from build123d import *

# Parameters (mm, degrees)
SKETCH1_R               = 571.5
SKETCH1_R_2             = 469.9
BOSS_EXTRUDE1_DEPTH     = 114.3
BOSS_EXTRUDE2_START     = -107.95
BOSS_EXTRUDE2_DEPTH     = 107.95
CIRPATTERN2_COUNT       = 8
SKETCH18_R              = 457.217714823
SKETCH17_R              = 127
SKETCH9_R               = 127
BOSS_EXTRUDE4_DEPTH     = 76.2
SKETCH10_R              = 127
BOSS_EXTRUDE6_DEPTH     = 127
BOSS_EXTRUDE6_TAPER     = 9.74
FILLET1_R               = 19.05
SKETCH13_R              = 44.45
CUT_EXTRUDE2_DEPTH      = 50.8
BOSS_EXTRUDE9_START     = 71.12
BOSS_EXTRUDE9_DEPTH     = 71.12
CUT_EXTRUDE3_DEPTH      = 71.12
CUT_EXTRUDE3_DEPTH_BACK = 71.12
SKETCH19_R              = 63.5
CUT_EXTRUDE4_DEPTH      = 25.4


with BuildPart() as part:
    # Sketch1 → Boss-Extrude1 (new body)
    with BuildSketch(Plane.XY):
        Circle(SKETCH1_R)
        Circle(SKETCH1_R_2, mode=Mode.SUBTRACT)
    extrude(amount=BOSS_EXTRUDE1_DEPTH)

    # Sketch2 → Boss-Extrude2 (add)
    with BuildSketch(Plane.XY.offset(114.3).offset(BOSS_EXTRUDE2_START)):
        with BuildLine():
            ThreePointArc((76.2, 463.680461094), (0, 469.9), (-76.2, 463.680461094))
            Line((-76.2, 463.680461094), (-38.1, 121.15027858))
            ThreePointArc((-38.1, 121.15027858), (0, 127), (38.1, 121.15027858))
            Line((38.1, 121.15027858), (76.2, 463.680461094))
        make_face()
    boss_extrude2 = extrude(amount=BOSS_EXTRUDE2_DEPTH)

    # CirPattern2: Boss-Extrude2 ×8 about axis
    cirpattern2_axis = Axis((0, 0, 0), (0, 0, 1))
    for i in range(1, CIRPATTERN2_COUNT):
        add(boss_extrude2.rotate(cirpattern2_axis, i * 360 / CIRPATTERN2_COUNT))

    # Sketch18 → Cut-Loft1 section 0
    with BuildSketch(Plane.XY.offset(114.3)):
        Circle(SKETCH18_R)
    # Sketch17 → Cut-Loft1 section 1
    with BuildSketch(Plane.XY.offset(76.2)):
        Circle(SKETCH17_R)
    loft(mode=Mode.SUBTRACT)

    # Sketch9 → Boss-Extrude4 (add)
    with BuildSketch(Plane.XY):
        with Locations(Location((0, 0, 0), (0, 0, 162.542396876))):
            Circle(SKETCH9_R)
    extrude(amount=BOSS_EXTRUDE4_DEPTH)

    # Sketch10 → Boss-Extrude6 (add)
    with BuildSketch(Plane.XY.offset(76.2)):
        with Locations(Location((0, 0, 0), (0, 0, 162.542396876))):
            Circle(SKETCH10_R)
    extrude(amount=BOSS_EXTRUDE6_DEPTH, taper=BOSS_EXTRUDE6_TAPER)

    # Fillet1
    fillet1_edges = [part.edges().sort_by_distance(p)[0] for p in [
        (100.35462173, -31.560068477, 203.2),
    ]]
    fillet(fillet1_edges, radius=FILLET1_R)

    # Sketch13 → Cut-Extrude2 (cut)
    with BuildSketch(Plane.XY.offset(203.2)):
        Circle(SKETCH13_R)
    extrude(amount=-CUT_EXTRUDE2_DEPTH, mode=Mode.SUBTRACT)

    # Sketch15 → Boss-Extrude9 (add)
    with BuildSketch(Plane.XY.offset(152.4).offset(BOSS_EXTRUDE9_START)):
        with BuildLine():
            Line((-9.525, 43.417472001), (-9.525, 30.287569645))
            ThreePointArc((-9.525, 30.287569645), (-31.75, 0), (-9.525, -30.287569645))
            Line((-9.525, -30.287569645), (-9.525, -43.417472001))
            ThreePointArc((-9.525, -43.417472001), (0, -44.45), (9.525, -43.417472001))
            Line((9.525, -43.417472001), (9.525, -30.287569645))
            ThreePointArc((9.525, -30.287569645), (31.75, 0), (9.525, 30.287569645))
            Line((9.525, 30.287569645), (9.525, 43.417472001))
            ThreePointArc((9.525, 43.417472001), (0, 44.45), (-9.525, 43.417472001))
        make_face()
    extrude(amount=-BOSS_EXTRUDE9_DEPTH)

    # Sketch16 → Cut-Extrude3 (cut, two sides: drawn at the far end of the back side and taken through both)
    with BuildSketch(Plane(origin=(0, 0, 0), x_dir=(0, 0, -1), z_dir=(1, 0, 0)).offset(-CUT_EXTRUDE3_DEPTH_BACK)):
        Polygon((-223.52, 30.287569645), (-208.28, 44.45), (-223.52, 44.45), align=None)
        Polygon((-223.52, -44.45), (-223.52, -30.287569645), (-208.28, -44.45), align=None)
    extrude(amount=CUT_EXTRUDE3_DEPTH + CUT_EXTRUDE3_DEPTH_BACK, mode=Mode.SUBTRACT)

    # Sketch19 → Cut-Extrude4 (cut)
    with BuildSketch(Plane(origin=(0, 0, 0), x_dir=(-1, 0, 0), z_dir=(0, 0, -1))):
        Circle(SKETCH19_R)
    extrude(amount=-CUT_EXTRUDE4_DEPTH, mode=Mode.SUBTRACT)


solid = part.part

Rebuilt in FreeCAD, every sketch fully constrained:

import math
import FreeCAD as App
import Part
import Sketcher
from FreeCAD import Vector
Q = App.Units.Quantity


def edges_at(feature, points):
    """Names of the edges that pass closest to the given points."""
    edges = feature.Shape.Edges
    near = lambda p: min(range(len(edges)), key=lambda i: edges[i].distToShape(Part.Vertex(*p))[0])
    return sorted({f"Edge{near(p) + 1}" for p in points})


def add_polygon(sketch, points):
    """Adds a closed chain of lines whose ends are joined by coincident constraints."""
    first, n = sketch.GeometryCount, len(points)
    for a, b in zip(points, points[1:] + points[:1]):
        sketch.addGeometry(Part.LineSegment(App.Vector(*a, 0), App.Vector(*b, 0)), False)
    for i in range(n):
        sketch.addConstraint(Sketcher.Constraint("Coincident", first + i, 2, first + (i + 1) % n, 1))

doc = App.newDocument("Part")
params = doc.addObject("Spreadsheet::Sheet", "Params")
for row, (alias, value) in enumerate([
    ("sketch1_diameter", "45 in"),
    ("sketch1_diameter2", "37 in"),
    ("pad1_length", "4.5 in"),
    ("sketch2_radius", "5 in"),
    ("sketch2_radius2", "18.5 in"),
    ("pad2_length", "4.25 in"),
    ("sketch4_diameter", "10 in"),
    ("sketch5_diameter", "10 in"),
    ("pad3_length", "3 in"),
    ("sketch6_diameter", "10 in"),
    ("pad4_length", "5 in"),
    ("pad4_taper", "-9.74 deg"),
    ("fillet_radius", "0.75 in"),
    ("sketch7_diameter", "3.5 in"),
    ("pocket1_length", "2 in"),
    ("sketch8_radius", "1.25 in"),
    ("sketch8_radius2", "1.75 in"),
    ("pad5_length", "2.8 in"),
    ("sketch9_height", "0.6 in"),
    ("sketch10_diameter", "5 in"),
    ("pocket3_length", "1 in"),
], start=1):
    params.set(f"A{row}", alias)
    params.set(f"B{row}", "=" + value)
    params.setAlias(f"B{row}", alias)

body = doc.addObject("PartDesign::Body", "Body")

# Sketch on XY plane
sketch1 = body.newObject("Sketcher::SketchObject", "Sketch")
sketch1.AttachmentSupport = (doc.getObject("XY_Plane"), [""])
sketch1.MapMode = "FlatFace"
sketch1.addGeometry([
    Part.Circle(Vector(0, 0, 0), Vector(0, 0, 1), 572),
    Part.Circle(Vector(0, 0, 0), Vector(0, 0, 1), 470),
], False)
sketch1.addConstraint([
    Sketcher.Constraint("Coincident", 0, 3, -1, 1),
    Sketcher.Constraint("Coincident", 1, 3, -1, 1),
    Sketcher.Constraint("Diameter", 0, Q("45 in")),
    Sketcher.Constraint("Diameter", 1, Q("37 in")),
])
sketch1.setExpression("Constraints[2]", "Params.sketch1_diameter")
sketch1.setExpression("Constraints[3]", "Params.sketch1_diameter2")
pad1 = body.newObject("PartDesign::Pad", "Pad")
pad1.Profile = sketch1
pad1.setExpression("Length", "Params.pad1_length")

# Sketch on XY plane
sketch2 = body.newObject("Sketcher::SketchObject", "Sketch001")
sketch2.AttachmentSupport = (doc.getObject("XY_Plane"), [""])
sketch2.MapMode = "FlatFace"
sketch2.AttachmentOffset = App.Placement(Vector(0, 0, 0.25 * 25.4), App.Rotation())
sketch2.addGeometry([
    Part.ArcOfCircle(Part.Circle(Vector(0, 0, 0), Vector(0, 0, 1), 470), math.radians(80.67), math.radians(99.33)),
    Part.LineSegment(Vector(-76, 464, 0), Vector(-38, 121, 0)),
    Part.ArcOfCircle(Part.Circle(Vector(0, 0, 0), Vector(0, 0, 1), 127), math.radians(73), math.radians(107)),
    Part.LineSegment(Vector(38, 121, 0), Vector(76, 464, 0)),
], False)
sketch2.addConstraint([
    Sketcher.Constraint("Coincident", 0, 2, 1, 1),
    Sketcher.Constraint("Coincident", 1, 2, 2, 2),
    Sketcher.Constraint("Coincident", 2, 1, 3, 1),
    Sketcher.Constraint("Coincident", 3, 2, 0, 1),
    Sketcher.Constraint("Coincident", 0, 3, -1, 1),
    Sketcher.Constraint("Coincident", 2, 3, -1, 1),
    Sketcher.Constraint("Horizontal", 1, 2, 2, 1),
    Sketcher.Constraint("Horizontal", 0, 2, 3, 2),
    Sketcher.Constraint("Radius", 2, Q("5 in")),
    Sketcher.Constraint("Radius", 0, Q("18.5 in")),
    Sketcher.Constraint("DistanceX", -1, 1, 3, 2, Q("3 in")),
    Sketcher.Constraint("DistanceX", 1, 2, 2, 1, Q("3 in")),
])
sketch2.setExpression("Constraints[8]", "Params.sketch2_radius")
sketch2.setExpression("Constraints[9]", "Params.sketch2_radius2")
pad2 = body.newObject("PartDesign::Pad", "Pad001")
pad2.Profile = sketch2
pad2.setExpression("Length", "Params.pad2_length")
doc.recompute()

polarpattern = body.newObject("PartDesign::PolarPattern", "PolarPattern")
polarpattern.Originals = [pad2]
polarpattern.Axis = (doc.getObject("Z_Axis"), [""])
polarpattern.Angle = 360
polarpattern.Occurrences = 8
body.Tip = polarpattern

# Sketch on XY plane
sketch3 = body.newObject("Sketcher::SketchObject", "Sketch002")
sketch3.AttachmentSupport = (doc.getObject("XY_Plane"), [""])
sketch3.MapMode = "FlatFace"
sketch3.AttachmentOffset = App.Placement(Vector(0, 0, 4.5 * 25.4), App.Rotation())
sketch3.addGeometry(Part.Circle(Vector(0, 0, 0), Vector(0, 0, 1), 457), False)
sketch3.addConstraint([
    Sketcher.Constraint("Coincident", 0, 3, -1, 1),
    Sketcher.Constraint("Diameter", 0, 914.43543),
])

# Sketch on XY plane
sketch4 = body.newObject("Sketcher::SketchObject", "Sketch003")
sketch4.AttachmentSupport = (doc.getObject("XY_Plane"), [""])
sketch4.MapMode = "FlatFace"
sketch4.AttachmentOffset = App.Placement(Vector(0, 0, 3 * 25.4), App.Rotation())
sketch4.addGeometry(Part.Circle(Vector(0, 0, 0), Vector(0, 0, 1), 127), False)
sketch4.addConstraint([
    Sketcher.Constraint("Coincident", 0, 3, -1, 1),
    Sketcher.Constraint("Diameter", 0, Q("10 in")),
])
sketch4.setExpression("Constraints[1]", "Params.sketch4_diameter")

subtractiveloft = body.newObject("PartDesign::SubtractiveLoft", "SubtractiveLoft")
subtractiveloft.Profile = sketch3
subtractiveloft.Sections = [sketch4]

# Sketch on XY plane
sketch5 = body.newObject("Sketcher::SketchObject", "Sketch004")
sketch5.AttachmentSupport = (doc.getObject("XY_Plane"), [""])
sketch5.MapMode = "FlatFace"
sketch5.addGeometry(Part.Circle(Vector(0, 0, 0), Vector(0, 0, 1), 127), False)
sketch5.addConstraint([
    Sketcher.Constraint("Coincident", 0, 3, -1, 1),
    Sketcher.Constraint("Diameter", 0, Q("10 in")),
])
sketch5.setExpression("Constraints[1]", "Params.sketch5_diameter")
pad3 = body.newObject("PartDesign::Pad", "Pad002")
pad3.Profile = sketch5
pad3.setExpression("Length", "Params.pad3_length")

# Sketch on XY plane
sketch6 = body.newObject("Sketcher::SketchObject", "Sketch005")
sketch6.AttachmentSupport = (doc.getObject("XY_Plane"), [""])
sketch6.MapMode = "FlatFace"
sketch6.AttachmentOffset = App.Placement(Vector(0, 0, 3 * 25.4), App.Rotation())
sketch6.addGeometry(Part.Circle(Vector(0, 0, 0), Vector(0, 0, 1), 127), False)
sketch6.addConstraint([
    Sketcher.Constraint("Coincident", 0, 3, -1, 1),
    Sketcher.Constraint("Diameter", 0, Q("10 in")),
])
sketch6.setExpression("Constraints[1]", "Params.sketch6_diameter")
pad4 = body.newObject("PartDesign::Pad", "Pad003")
pad4.Profile = sketch6
pad4.setExpression("Length", "Params.pad4_length")
pad4.setExpression("TaperAngle", "Params.pad4_taper")
doc.recompute()

fillet = body.newObject("PartDesign::Fillet", "Fillet")
fillet.Base = (pad4, edges_at(pad4, [(100.355, -31.56, 203.2)]))
fillet.setExpression("Radius", "Params.fillet_radius")

# Sketch on XY plane
sketch7 = body.newObject("Sketcher::SketchObject", "Sketch006")
sketch7.AttachmentSupport = (doc.getObject("XY_Plane"), [""])
sketch7.MapMode = "FlatFace"
sketch7.AttachmentOffset = App.Placement(Vector(0, 0, 8 * 25.4), App.Rotation())
sketch7.addGeometry(Part.Circle(Vector(0, 0, 0), Vector(0, 0, 1), 44), False)
sketch7.addConstraint([
    Sketcher.Constraint("Coincident", 0, 3, -1, 1),
    Sketcher.Constraint("Diameter", 0, Q("3.5 in")),
])
sketch7.setExpression("Constraints[1]", "Params.sketch7_diameter")
pocket1 = body.newObject("PartDesign::Pocket", "Pocket")
pocket1.Profile = sketch7
pocket1.setExpression("Length", "Params.pocket1_length")

# Sketch on XY plane
sketch8 = body.newObject("Sketcher::SketchObject", "Sketch007")
sketch8.AttachmentSupport = (doc.getObject("XY_Plane"), [""])
sketch8.MapMode = "FlatFace"
sketch8.AttachmentOffset = App.Placement(Vector(0, 0, 8.8 * 25.4), App.Rotation())
sketch8.addGeometry([
    Part.LineSegment(Vector(-10, 43, 0), Vector(-10, 30, 0)),  # 0
    Part.ArcOfCircle(Part.Circle(Vector(0, 0, 0), Vector(0, 0, 1), 32), math.radians(107), math.radians(253)),  # 1
    Part.LineSegment(Vector(-10, -30, 0), Vector(-10, -43, 0)),  # 2
    Part.ArcOfCircle(Part.Circle(Vector(0, 0, 0), Vector(0, 0, 1), 44), math.radians(-102), math.radians(-78)),  # 3
    Part.LineSegment(Vector(10, -43, 0), Vector(10, -30, 0)),  # 4
    Part.ArcOfCircle(Part.Circle(Vector(0, 0, 0), Vector(0, 0, 1), 32), math.radians(-73), math.radians(73)),  # 5
    Part.LineSegment(Vector(10, 30, 0), Vector(10, 43, 0)),  # 6
    Part.ArcOfCircle(Part.Circle(Vector(0, 0, 0), Vector(0, 0, 1), 44), math.radians(78), math.radians(102)),  # 7
], False)
sketch8.addConstraint([
    Sketcher.Constraint("Coincident", 0, 2, 1, 1),
    Sketcher.Constraint("Coincident", 1, 2, 2, 1),
    Sketcher.Constraint("Coincident", 2, 2, 3, 1),
    Sketcher.Constraint("Coincident", 3, 2, 4, 1),
    Sketcher.Constraint("Coincident", 4, 2, 5, 1),
    Sketcher.Constraint("Coincident", 5, 2, 6, 1),
    Sketcher.Constraint("Coincident", 6, 2, 7, 1),
    Sketcher.Constraint("Coincident", 7, 2, 0, 1),
    Sketcher.Constraint("Vertical", 0),
    Sketcher.Constraint("Vertical", 2),
    Sketcher.Constraint("Vertical", 4),
    Sketcher.Constraint("Vertical", 6),
    Sketcher.Constraint("Coincident", 1, 3, -1, 1),
    Sketcher.Constraint("Coincident", 3, 3, -1, 1),
    Sketcher.Constraint("Coincident", 5, 3, -1, 1),
    Sketcher.Constraint("Coincident", 7, 3, -1, 1),
    Sketcher.Constraint("Equal", 1, 5),
    Sketcher.Constraint("Equal", 3, 7),
    Sketcher.Constraint("Horizontal", 2, 2, 3, 2),
    Sketcher.Constraint("Horizontal", 0, 2, 5, 2),
    Sketcher.Constraint("Vertical", 0, 2, 1, 2),
    Sketcher.Constraint("Radius", 1, Q("1.25 in")),
    Sketcher.Constraint("Radius", 3, Q("1.75 in")),
    Sketcher.Constraint("DistanceX", 2, 2, 3, 2, Q("0.75 in")),
])
sketch8.setExpression("Constraints[21]", "Params.sketch8_radius")
sketch8.setExpression("Constraints[22]", "Params.sketch8_radius2")
pad5 = body.newObject("PartDesign::Pad", "Pad004")
pad5.Profile = sketch8
pad5.setExpression("Length", "Params.pad5_length")
pad5.Reversed = True

# Sketch on YZ plane
sketch9 = body.newObject("Sketcher::SketchObject", "Sketch008")
sketch9.AttachmentSupport = (doc.getObject("YZ_Plane"), [""])
sketch9.MapMode = "FlatFace"
add_polygon(sketch9, [(30, 224), (44, 208), (44, 224)])  # lines 0-2
add_polygon(sketch9, [(-30, 224), (-44, 224), (-44, 208)])  # lines 3-5
sketch9.addConstraint([
    Sketcher.Constraint("Vertical", 1),
    Sketcher.Constraint("Horizontal", 2),
    Sketcher.Constraint("Horizontal", 3),
    Sketcher.Constraint("Vertical", 4),
    Sketcher.Constraint("Symmetric", 1, 2, 3, 2, -2),
    Sketcher.Constraint("Horizontal", 0, 2, 4, 2),
    Sketcher.Constraint("Equal", 2, 3),
    Sketcher.Constraint("DistanceY", 1, 1, 1, 2, Q("0.6 in")),
    Sketcher.Constraint("DistanceY", -1, 1, 0, 2, Q("8.2 in")),
    Sketcher.Constraint("DistanceX", 3, 2, 1, 2, Q("3.5 in")),
    Sketcher.Constraint("DistanceX", 2, 2, 2, 1, 14.16243),
])
sketch9.setExpression("Constraints[13]", "Params.sketch9_height")
pocket2 = body.newObject("PartDesign::Pocket", "Pocket001")
pocket2.Profile = sketch9
pocket2.Type = "ThroughAll"
pocket2.Midplane = True

# Sketch on XY plane
sketch10 = body.newObject("Sketcher::SketchObject", "Sketch009")
sketch10.AttachmentSupport = (doc.getObject("XY_Plane"), [""])
sketch10.MapMode = "FlatFace"
sketch10.addGeometry(Part.Circle(Vector(0, 0, 0), Vector(0, 0, 1), 64), False)
sketch10.addConstraint([
    Sketcher.Constraint("Coincident", 0, 3, -1, 1),
    Sketcher.Constraint("Diameter", 0, Q("5 in")),
])
sketch10.setExpression("Constraints[1]", "Params.sketch10_diameter")
pocket3 = body.newObject("PartDesign::Pocket", "Pocket002")
pocket3.Profile = sketch10
pocket3.setExpression("Length", "Params.pocket3_length")
pocket3.Reversed = True

doc.recompute()
